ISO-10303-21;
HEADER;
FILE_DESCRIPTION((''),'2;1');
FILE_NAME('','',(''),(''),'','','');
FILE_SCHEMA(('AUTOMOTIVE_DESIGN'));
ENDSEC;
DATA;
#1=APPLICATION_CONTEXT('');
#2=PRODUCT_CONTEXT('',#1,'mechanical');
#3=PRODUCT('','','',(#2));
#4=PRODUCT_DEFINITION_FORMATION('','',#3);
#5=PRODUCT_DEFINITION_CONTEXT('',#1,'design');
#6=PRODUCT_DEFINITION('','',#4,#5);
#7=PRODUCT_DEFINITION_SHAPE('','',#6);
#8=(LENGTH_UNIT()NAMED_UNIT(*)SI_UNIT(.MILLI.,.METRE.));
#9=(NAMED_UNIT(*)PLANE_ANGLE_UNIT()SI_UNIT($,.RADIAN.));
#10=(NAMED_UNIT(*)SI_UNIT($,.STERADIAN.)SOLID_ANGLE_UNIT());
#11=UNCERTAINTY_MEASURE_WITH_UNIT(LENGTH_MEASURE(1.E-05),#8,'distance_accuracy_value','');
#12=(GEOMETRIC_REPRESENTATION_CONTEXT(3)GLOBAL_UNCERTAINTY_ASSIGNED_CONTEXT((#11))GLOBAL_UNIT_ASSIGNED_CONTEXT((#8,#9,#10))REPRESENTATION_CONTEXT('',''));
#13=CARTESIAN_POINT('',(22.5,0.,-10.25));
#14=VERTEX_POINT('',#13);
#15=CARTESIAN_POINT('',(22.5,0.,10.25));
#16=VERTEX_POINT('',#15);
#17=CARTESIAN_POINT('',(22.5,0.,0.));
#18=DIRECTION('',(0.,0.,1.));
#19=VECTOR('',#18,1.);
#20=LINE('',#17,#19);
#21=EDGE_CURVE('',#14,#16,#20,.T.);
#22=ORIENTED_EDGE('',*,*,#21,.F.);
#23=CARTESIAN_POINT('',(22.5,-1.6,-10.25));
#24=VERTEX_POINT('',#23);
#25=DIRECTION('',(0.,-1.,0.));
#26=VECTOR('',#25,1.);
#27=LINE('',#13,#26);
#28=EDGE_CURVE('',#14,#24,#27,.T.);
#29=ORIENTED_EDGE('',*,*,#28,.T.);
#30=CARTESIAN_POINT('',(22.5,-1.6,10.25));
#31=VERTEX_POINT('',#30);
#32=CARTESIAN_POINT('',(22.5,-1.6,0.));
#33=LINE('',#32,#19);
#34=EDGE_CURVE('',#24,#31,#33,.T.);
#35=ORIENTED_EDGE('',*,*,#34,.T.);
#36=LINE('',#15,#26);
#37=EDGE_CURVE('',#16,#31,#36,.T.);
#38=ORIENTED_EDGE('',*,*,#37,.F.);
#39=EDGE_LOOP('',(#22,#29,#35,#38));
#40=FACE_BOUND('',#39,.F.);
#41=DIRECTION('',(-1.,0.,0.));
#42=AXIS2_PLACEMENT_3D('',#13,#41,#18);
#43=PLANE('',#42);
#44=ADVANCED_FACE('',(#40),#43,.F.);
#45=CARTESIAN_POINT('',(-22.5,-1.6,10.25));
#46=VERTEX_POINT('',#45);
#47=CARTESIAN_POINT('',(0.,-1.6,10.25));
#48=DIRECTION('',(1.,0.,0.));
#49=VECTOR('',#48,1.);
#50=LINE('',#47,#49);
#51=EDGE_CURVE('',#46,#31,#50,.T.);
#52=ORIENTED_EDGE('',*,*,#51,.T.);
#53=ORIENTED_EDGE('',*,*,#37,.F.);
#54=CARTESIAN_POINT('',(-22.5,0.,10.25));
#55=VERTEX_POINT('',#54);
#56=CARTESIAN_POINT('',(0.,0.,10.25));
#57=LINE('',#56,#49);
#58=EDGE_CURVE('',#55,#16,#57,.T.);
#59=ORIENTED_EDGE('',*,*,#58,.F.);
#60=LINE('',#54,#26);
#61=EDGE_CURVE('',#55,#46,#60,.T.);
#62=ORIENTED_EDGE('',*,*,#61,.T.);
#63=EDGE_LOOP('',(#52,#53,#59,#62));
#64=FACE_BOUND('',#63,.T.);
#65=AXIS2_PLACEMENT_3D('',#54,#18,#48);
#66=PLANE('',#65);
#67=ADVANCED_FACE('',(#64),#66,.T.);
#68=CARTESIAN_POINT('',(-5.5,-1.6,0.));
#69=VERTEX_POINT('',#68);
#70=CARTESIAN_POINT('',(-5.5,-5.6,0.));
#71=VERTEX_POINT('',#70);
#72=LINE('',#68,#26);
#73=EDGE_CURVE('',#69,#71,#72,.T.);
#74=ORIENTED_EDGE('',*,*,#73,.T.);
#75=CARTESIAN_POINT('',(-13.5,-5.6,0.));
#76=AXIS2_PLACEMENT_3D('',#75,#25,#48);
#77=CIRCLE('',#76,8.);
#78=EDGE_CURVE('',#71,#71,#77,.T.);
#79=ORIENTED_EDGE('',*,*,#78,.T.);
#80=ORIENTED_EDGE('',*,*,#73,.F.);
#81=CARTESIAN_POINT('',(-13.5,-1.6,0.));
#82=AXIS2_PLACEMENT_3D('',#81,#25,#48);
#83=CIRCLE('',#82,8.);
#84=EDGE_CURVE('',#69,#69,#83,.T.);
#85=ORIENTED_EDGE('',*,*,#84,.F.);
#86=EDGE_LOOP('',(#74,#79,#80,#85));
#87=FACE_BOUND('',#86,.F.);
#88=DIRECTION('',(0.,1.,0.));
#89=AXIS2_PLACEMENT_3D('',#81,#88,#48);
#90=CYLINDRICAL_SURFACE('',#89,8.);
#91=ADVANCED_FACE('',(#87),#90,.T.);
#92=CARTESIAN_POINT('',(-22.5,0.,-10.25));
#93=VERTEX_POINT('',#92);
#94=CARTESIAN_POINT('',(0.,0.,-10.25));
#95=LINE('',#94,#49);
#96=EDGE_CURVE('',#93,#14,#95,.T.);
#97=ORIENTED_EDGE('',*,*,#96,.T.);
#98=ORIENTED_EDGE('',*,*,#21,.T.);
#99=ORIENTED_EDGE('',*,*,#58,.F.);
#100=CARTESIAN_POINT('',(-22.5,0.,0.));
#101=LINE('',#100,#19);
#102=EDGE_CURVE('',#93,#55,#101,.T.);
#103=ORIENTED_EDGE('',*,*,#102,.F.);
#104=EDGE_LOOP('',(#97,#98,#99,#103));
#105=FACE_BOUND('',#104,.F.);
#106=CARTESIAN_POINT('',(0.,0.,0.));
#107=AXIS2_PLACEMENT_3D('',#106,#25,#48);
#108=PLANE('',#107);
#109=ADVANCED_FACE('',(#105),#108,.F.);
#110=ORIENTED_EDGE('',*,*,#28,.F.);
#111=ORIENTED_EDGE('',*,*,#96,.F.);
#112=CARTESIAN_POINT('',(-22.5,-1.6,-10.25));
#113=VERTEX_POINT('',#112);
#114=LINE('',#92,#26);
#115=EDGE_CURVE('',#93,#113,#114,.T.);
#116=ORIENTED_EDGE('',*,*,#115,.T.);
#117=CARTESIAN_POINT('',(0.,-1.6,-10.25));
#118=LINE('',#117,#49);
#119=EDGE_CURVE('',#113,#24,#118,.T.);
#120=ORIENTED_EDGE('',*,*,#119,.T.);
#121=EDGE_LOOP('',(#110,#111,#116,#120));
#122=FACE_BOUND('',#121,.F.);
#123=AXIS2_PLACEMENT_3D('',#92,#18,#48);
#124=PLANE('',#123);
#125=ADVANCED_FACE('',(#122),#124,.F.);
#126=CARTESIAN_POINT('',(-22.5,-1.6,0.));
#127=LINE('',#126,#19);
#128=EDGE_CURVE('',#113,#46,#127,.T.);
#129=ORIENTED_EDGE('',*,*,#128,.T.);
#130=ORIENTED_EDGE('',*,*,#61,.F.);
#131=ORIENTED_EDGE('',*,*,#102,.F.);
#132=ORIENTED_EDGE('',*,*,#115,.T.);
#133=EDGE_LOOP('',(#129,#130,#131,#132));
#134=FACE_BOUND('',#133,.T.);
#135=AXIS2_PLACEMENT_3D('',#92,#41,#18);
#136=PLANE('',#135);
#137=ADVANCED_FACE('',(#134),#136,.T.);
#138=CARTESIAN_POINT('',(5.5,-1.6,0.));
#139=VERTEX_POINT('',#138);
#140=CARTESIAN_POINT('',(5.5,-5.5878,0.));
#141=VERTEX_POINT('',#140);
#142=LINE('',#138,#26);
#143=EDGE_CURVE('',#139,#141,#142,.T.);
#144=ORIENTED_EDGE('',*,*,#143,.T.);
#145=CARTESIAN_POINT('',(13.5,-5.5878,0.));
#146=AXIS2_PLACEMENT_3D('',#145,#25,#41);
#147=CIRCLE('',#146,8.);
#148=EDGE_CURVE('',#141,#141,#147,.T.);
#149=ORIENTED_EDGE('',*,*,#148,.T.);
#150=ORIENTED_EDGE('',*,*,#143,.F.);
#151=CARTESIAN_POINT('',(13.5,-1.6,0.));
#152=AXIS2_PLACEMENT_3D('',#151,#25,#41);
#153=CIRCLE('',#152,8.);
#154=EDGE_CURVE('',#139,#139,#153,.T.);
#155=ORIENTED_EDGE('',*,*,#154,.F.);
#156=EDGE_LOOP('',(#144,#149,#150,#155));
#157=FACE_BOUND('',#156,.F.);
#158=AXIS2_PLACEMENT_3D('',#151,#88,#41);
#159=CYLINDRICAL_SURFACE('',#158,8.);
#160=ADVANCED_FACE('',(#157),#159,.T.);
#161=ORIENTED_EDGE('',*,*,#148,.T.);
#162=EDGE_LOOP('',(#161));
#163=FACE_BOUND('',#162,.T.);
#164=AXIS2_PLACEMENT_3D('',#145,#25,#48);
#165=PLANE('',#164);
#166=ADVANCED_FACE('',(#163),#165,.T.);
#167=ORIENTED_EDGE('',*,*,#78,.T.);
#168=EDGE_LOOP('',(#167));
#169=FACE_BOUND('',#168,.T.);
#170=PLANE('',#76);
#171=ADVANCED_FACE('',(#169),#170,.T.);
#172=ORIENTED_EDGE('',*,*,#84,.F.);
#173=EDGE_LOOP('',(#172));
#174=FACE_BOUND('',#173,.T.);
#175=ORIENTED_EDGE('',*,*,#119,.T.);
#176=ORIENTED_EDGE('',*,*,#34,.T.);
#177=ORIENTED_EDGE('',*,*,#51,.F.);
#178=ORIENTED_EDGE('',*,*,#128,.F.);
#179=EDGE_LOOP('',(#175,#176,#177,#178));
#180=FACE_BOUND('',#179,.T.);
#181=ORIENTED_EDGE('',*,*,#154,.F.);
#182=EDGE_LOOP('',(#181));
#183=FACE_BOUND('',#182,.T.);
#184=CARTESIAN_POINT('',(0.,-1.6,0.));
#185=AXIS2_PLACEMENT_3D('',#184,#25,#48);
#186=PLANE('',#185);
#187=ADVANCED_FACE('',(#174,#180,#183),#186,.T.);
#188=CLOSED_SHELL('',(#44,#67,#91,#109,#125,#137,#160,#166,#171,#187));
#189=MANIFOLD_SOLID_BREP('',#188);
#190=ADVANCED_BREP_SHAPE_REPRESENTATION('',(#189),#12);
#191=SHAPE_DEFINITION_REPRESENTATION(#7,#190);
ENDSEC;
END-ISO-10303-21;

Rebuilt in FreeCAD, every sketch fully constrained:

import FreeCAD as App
import Part
import Sketcher
from FreeCAD import Vector
Q = App.Units.Quantity

doc = App.newDocument("Part")
body = doc.addObject("PartDesign::Body", "Body")

# Sketch on XZ plane
sketch1 = body.newObject("Sketcher::SketchObject", "Sketch")
sketch1.AttachmentSupport = (doc.getObject("XZ_Plane"), [""])
sketch1.MapMode = "FlatFace"
sketch1.addGeometry([
    Part.LineSegment(Vector(-22.5, 10.25, 0), Vector(-22.5, -10.25, 0)),
    Part.LineSegment(Vector(-22.5, -10.25, 0), Vector(22.5, -10.25, 0)),
    Part.LineSegment(Vector(22.5, -10.25, 0), Vector(22.5, 10.25, 0)),
    Part.LineSegment(Vector(22.5, 10.25, 0), Vector(-22.5, 10.25, 0)),
], False)
sketch1.addConstraint([
    Sketcher.Constraint("Coincident", 0, 2, 1, 1),
    Sketcher.Constraint("Coincident", 1, 2, 2, 1),
    Sketcher.Constraint("Coincident", 2, 2, 3, 1),
    Sketcher.Constraint("Coincident", 3, 2, 0, 1),
    Sketcher.Constraint("Vertical", 0),
    Sketcher.Constraint("Horizontal", 1),
    Sketcher.Constraint("Vertical", 2),
    Sketcher.Constraint("Horizontal", 3),
    Sketcher.Constraint("Symmetric", 0, 2, 2, 2, -1, 1),
    Sketcher.Constraint("DistanceX", 1, 1, 1, 2, Q("45 mm")),
    Sketcher.Constraint("DistanceY", 0, 2, 0, 1, Q("20.5 mm")),
])
pad1 = body.newObject("PartDesign::Pad", "Pad")
pad1.Profile = sketch1
pad1.Length = 1.6

# Sketch on XZ plane
sketch2 = body.newObject("Sketcher::SketchObject", "Sketch001")
sketch2.AttachmentSupport = (doc.getObject("XZ_Plane"), [""])
sketch2.MapMode = "FlatFace"
sketch2.AttachmentOffset = App.Placement(Vector(0, 0, 1.6), App.Rotation())
sketch2.addGeometry(Part.Circle(Vector(-13.5, 0, 0), Vector(0, 0, 1), 8), False)
sketch2.addConstraint([
    Sketcher.Constraint("PointOnObject", 0, 3, -1),
    Sketcher.Constraint("Diameter", 0, Q("16 mm")),
    Sketcher.Constraint("DistanceX", 0, 3, -1, 1, Q("13.5 mm")),
])
pad2 = body.newObject("PartDesign::Pad", "Pad001")
pad2.Profile = sketch2
pad2.Length = 4

# Sketch on XZ plane
sketch3 = body.newObject("Sketcher::SketchObject", "Sketch002")
sketch3.AttachmentSupport = (doc.getObject("XZ_Plane"), [""])
sketch3.MapMode = "FlatFace"
sketch3.AttachmentOffset = App.Placement(Vector(0, 0, 1.6), App.Rotation())
sketch3.addGeometry(Part.Circle(Vector(13.5, 0, 0), Vector(0, 0, 1), 8), False)
sketch3.addConstraint([
    Sketcher.Constraint("PointOnObject", 0, 3, -1),
    Sketcher.Constraint("Diameter", 0, Q("16 mm")),
    Sketcher.Constraint("DistanceX", -1, 1, 0, 3, Q("13.5 mm")),
])
pad3 = body.newObject("PartDesign::Pad", "Pad002")
pad3.Profile = sketch3
pad3.Length = 3.9878

doc.recompute()
